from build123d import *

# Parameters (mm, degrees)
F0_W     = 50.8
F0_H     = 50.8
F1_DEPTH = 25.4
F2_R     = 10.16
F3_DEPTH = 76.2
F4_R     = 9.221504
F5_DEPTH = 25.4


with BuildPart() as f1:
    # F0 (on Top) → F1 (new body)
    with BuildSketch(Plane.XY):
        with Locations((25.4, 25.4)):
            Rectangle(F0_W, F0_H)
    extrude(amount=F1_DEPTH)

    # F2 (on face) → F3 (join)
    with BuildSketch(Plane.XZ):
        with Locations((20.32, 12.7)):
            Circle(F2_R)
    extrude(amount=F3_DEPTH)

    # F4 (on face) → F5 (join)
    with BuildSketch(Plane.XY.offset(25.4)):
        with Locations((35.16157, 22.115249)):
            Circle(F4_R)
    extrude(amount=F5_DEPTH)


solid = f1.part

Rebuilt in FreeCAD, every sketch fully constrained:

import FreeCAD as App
import Part
import Sketcher

V = App.Vector
Q = App.Units.Quantity


def add_polygon(sketch, points):
    """Adds a closed chain of lines whose ends are joined by coincident constraints."""
    first, n = sketch.GeometryCount, len(points)
    for a, b in zip(points, points[1:] + points[:1]):
        sketch.addGeometry(Part.LineSegment(App.Vector(*a, 0), App.Vector(*b, 0)), False)
    for i in range(n):
        sketch.addConstraint(Sketcher.Constraint("Coincident", first + i, 2, first + (i + 1) % n, 1))

doc = App.newDocument("Part")
body = doc.addObject("PartDesign::Body", "Body")

sketch1 = body.newObject("Sketcher::SketchObject", "Sketch")
sketch1.AttachmentSupport = (doc.getObject("XY_Plane"), [""])
sketch1.MapMode = "FlatFace"
add_polygon(sketch1, [(0, 51), (0, 0), (51, 0), (51, 51)])
sketch1.addConstraint([
    Sketcher.Constraint("Vertical", 0),
    Sketcher.Constraint("Horizontal", 1),
    Sketcher.Constraint("Vertical", 2),
    Sketcher.Constraint("Horizontal", 3),
    Sketcher.Constraint("Coincident", 0, 2, -1, 1),
    Sketcher.Constraint("Equal", 3, 0),
    Sketcher.Constraint("DistanceX", 1, 1, 1, 2, Q("2 in")),
])
pad1 = body.newObject("PartDesign::Pad", "Pad")
pad1.Profile = sketch1
pad1.Length = Q("1 in")

sketch2 = body.newObject("Sketcher::SketchObject", "Sketch001")
sketch2.AttachmentSupport = (doc.getObject("XZ_Plane"), [""])
sketch2.MapMode = "FlatFace"
sketch2.addGeometry(Part.Circle(V(20, 13, 0), V(0, 0, 1), 10), False)
sketch2.addConstraint([
    Sketcher.Constraint("Diameter", 0, Q("0.8 in")),
    Sketcher.Constraint("DistanceX", -1, 1, 0, 3, Q("0.8 in")),
    Sketcher.Constraint("DistanceY", -1, 1, 0, 3, Q("0.5 in")),
])
pad2 = body.newObject("PartDesign::Pad", "Pad001")
pad2.Profile = sketch2
pad2.Length = Q("3 in")

sketch3 = body.newObject("Sketcher::SketchObject", "Sketch002")
sketch3.AttachmentSupport = (doc.getObject("XY_Plane"), [""])
sketch3.MapMode = "FlatFace"
sketch3.AttachmentOffset = App.Placement(V(0, 0, 1 * 25.4), App.Rotation())
sketch3.addGeometry(Part.Circle(V(35, 22, 0), V(0, 0, 1), 9), False)
sketch3.addConstraint([
    Sketcher.Constraint("Diameter", 0, 18.443008),
    Sketcher.Constraint("DistanceX", -1, 1, 0, 3, 35.16157),
    Sketcher.Constraint("DistanceY", -1, 1, 0, 3, 22.115249),
])
pad3 = body.newObject("PartDesign::Pad", "Pad002")
pad3.Profile = sketch3
pad3.Length = Q("1 in")

doc.recompute()
